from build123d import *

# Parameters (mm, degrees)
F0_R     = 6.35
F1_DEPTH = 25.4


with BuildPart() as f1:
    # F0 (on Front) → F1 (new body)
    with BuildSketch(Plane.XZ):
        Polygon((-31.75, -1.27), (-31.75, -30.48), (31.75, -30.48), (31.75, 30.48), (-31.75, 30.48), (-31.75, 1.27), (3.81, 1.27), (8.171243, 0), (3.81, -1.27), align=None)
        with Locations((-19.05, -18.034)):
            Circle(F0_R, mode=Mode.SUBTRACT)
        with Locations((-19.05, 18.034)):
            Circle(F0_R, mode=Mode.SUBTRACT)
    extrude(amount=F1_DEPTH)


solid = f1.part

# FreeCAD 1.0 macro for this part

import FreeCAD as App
import Part
import Sketcher
Q = App.Units.Quantity


def add_polygon(sketch, points):
    """Adds a closed chain of lines whose ends are joined by coincident constraints."""
    first, n = sketch.GeometryCount, len(points)
    for a, b in zip(points, points[1:] + points[:1]):
        sketch.addGeometry(Part.LineSegment(App.Vector(*a, 0), App.Vector(*b, 0)), False)
    for i in range(n):
        sketch.addConstraint(Sketcher.Constraint("Coincident", first + i, 2, first + (i + 1) % n, 1))

doc = App.newDocument("Part")
body = doc.addObject("PartDesign::Body", "Body")

sketch1 = body.newObject("Sketcher::SketchObject", "Sketch")
sketch1.AttachmentSupport = (doc.getObject("XZ_Plane"), [""])
sketch1.MapMode = "FlatFace"
add_polygon(sketch1, [(-31.8, -1.3), (-31.8, -30.5), (31.8, -30.5), (31.8, 30.5), (-31.8, 30.5), (-31.8, 1.3), (3.8, 1.3), (8.2, 0), (3.8, -1.3)])
sketch1.addGeometry(Part.Circle(App.Vector(-19.1, -18, 0), App.Vector(0, 0, 1), 6.3), False)
sketch1.addGeometry(Part.Circle(App.Vector(-19.1, 18, 0), App.Vector(0, 0, 1), 6.3), False)
sketch1.addConstraint([
    Sketcher.Constraint("Vertical", 0),
    Sketcher.Constraint("Horizontal", 1),
    Sketcher.Constraint("Vertical", 2),
    Sketcher.Constraint("Horizontal", 3),
    Sketcher.Constraint("Vertical", 4),
    Sketcher.Constraint("Horizontal", 5),
    Sketcher.Constraint("Horizontal", 8),
    Sketcher.Constraint("Equal", 9, 10),
    Sketcher.Constraint("Symmetric", 0, 2, 2, 2, -1, 1),
    Sketcher.Constraint("Symmetric", 9, 3, 10, 3, -1),
    Sketcher.Constraint("Symmetric", 5, 2, 7, 2, -1),
    Sketcher.Constraint("PointOnObject", 6, 2, -1),
    Sketcher.Constraint("Vertical", 0, 2, 3, 2),
    Sketcher.Constraint("Diameter", 9, Q("0.5 in")),
    Sketcher.Constraint("DistanceX", 1, 1, 1, 2, Q("2.5 in")),
    Sketcher.Constraint("DistanceX", 5, 1, 5, 2, Q("1.4 in")),
    Sketcher.Constraint("DistanceY", 2, 1, 2, 2, Q("2.4 in")),
    Sketcher.Constraint("DistanceX", 9, 3, 1, 2, Q("2 in")),
    Sketcher.Constraint("DistanceY", 0, 2, 0, 1, Q("1.15 in")),
    Sketcher.Constraint("DistanceY", 9, 3, -1, 1, Q("0.71 in")),
    Sketcher.Constraint("Distance", 6, 4.542394),
])
pad1 = body.newObject("PartDesign::Pad", "Pad")
pad1.Profile = sketch1
pad1.Length = Q("1 in")

doc.recompute()
